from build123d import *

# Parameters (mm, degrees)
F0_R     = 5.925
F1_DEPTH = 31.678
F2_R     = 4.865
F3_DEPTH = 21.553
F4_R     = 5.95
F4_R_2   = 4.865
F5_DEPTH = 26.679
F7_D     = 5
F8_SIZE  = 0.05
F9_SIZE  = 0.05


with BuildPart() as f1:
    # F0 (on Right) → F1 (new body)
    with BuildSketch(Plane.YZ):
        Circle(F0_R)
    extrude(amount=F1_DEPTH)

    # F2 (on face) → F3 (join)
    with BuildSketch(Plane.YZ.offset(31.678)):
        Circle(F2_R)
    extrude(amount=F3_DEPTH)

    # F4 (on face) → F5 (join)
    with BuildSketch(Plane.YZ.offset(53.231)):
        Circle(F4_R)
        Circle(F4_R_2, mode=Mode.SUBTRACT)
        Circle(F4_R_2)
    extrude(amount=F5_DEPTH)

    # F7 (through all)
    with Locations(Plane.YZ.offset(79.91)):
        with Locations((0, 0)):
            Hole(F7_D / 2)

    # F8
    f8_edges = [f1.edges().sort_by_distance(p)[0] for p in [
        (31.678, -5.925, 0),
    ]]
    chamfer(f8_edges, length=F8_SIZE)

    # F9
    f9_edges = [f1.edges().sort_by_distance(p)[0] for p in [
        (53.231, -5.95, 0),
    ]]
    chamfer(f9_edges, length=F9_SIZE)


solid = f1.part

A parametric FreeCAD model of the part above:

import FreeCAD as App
import Part
import Sketcher
Q = App.Units.Quantity


def edges_at(feature, points):
    """Names of the edges that pass closest to the given points."""
    edges = feature.Shape.Edges
    near = lambda p: min(range(len(edges)), key=lambda i: edges[i].distToShape(Part.Vertex(*p))[0])
    return sorted({f"Edge{near(p) + 1}" for p in points})

doc = App.newDocument("Part")
body = doc.addObject("PartDesign::Body", "Body")

sketch1 = body.newObject("Sketcher::SketchObject", "Sketch")
sketch1.AttachmentSupport = (doc.getObject("YZ_Plane"), [""])
sketch1.MapMode = "FlatFace"
sketch1.addGeometry(Part.Circle(App.Vector(0, 0, 0), App.Vector(0, 0, 1), 6), False)
sketch1.addConstraint(Sketcher.Constraint("Coincident", 0, 3, -1, 1))
sketch1.addConstraint(Sketcher.Constraint("Diameter", 0, Q("11.85 mm")))
pad1 = body.newObject("PartDesign::Pad", "Pad")
pad1.Profile = sketch1
pad1.Length = 31.678

sketch2 = body.newObject("Sketcher::SketchObject", "Sketch001")
sketch2.AttachmentSupport = (doc.getObject("YZ_Plane"), [""])
sketch2.MapMode = "FlatFace"
sketch2.AttachmentOffset = App.Placement(App.Vector(0, 0, 31.678), App.Rotation())
sketch2.addGeometry(Part.Circle(App.Vector(0, 0, 0), App.Vector(0, 0, 1), 4.9), False)
sketch2.addConstraint(Sketcher.Constraint("Coincident", 0, 3, -1, 1))
sketch2.addConstraint(Sketcher.Constraint("Diameter", 0, Q("9.73 mm")))
pad2 = body.newObject("PartDesign::Pad", "Pad001")
pad2.Profile = sketch2
pad2.Length = 21.553

sketch3 = body.newObject("Sketcher::SketchObject", "Sketch002")
sketch3.AttachmentSupport = (doc.getObject("YZ_Plane"), [""])
sketch3.MapMode = "FlatFace"
sketch3.AttachmentOffset = App.Placement(App.Vector(0, 0, 53.231), App.Rotation())
sketch3.addGeometry(Part.Circle(App.Vector(0, 0, 0), App.Vector(0, 0, 1), 6), False)
sketch3.addConstraint(Sketcher.Constraint("Coincident", 0, 3, -1, 1))
sketch3.addConstraint(Sketcher.Constraint("Diameter", 0, Q("11.9 mm")))
pad3 = body.newObject("PartDesign::Pad", "Pad002")
pad3.Profile = sketch3
pad3.Length = 26.679

sketch4 = body.newObject("Sketcher::SketchObject", "Sketch003")
sketch4.AttachmentSupport = (doc.getObject("YZ_Plane"), [""])
sketch4.MapMode = "FlatFace"
sketch4.AttachmentOffset = App.Placement(App.Vector(0, 0, 79.91), App.Rotation())
sketch4.addGeometry(Part.Circle(App.Vector(0, 0, 0), App.Vector(0, 0, 1), 2.5), False)
sketch4.addConstraint(Sketcher.Constraint("Coincident", 0, 3, -1, 1))
sketch4.addConstraint(Sketcher.Constraint("Diameter", 0, Q("5 mm")))
doc.recompute()
hole = body.newObject("PartDesign::Hole", "Hole")
hole.Profile = sketch4
hole.ThreadType = "None"
hole.Diameter = 5
hole.DepthType = "ThroughAll"
doc.recompute()

chamfer = body.newObject("PartDesign::Chamfer", "Chamfer")
chamfer.Base = (hole, edges_at(hole, [(31.678, -5.925, 0)]))
chamfer.Size = 0.05
doc.recompute()

chamfer2 = body.newObject("PartDesign::Chamfer", "Chamfer001")
chamfer2.Base = (chamfer, edges_at(chamfer, [(53.231, -5.95, 0)]))
chamfer2.Size = 0.05

doc.recompute()
